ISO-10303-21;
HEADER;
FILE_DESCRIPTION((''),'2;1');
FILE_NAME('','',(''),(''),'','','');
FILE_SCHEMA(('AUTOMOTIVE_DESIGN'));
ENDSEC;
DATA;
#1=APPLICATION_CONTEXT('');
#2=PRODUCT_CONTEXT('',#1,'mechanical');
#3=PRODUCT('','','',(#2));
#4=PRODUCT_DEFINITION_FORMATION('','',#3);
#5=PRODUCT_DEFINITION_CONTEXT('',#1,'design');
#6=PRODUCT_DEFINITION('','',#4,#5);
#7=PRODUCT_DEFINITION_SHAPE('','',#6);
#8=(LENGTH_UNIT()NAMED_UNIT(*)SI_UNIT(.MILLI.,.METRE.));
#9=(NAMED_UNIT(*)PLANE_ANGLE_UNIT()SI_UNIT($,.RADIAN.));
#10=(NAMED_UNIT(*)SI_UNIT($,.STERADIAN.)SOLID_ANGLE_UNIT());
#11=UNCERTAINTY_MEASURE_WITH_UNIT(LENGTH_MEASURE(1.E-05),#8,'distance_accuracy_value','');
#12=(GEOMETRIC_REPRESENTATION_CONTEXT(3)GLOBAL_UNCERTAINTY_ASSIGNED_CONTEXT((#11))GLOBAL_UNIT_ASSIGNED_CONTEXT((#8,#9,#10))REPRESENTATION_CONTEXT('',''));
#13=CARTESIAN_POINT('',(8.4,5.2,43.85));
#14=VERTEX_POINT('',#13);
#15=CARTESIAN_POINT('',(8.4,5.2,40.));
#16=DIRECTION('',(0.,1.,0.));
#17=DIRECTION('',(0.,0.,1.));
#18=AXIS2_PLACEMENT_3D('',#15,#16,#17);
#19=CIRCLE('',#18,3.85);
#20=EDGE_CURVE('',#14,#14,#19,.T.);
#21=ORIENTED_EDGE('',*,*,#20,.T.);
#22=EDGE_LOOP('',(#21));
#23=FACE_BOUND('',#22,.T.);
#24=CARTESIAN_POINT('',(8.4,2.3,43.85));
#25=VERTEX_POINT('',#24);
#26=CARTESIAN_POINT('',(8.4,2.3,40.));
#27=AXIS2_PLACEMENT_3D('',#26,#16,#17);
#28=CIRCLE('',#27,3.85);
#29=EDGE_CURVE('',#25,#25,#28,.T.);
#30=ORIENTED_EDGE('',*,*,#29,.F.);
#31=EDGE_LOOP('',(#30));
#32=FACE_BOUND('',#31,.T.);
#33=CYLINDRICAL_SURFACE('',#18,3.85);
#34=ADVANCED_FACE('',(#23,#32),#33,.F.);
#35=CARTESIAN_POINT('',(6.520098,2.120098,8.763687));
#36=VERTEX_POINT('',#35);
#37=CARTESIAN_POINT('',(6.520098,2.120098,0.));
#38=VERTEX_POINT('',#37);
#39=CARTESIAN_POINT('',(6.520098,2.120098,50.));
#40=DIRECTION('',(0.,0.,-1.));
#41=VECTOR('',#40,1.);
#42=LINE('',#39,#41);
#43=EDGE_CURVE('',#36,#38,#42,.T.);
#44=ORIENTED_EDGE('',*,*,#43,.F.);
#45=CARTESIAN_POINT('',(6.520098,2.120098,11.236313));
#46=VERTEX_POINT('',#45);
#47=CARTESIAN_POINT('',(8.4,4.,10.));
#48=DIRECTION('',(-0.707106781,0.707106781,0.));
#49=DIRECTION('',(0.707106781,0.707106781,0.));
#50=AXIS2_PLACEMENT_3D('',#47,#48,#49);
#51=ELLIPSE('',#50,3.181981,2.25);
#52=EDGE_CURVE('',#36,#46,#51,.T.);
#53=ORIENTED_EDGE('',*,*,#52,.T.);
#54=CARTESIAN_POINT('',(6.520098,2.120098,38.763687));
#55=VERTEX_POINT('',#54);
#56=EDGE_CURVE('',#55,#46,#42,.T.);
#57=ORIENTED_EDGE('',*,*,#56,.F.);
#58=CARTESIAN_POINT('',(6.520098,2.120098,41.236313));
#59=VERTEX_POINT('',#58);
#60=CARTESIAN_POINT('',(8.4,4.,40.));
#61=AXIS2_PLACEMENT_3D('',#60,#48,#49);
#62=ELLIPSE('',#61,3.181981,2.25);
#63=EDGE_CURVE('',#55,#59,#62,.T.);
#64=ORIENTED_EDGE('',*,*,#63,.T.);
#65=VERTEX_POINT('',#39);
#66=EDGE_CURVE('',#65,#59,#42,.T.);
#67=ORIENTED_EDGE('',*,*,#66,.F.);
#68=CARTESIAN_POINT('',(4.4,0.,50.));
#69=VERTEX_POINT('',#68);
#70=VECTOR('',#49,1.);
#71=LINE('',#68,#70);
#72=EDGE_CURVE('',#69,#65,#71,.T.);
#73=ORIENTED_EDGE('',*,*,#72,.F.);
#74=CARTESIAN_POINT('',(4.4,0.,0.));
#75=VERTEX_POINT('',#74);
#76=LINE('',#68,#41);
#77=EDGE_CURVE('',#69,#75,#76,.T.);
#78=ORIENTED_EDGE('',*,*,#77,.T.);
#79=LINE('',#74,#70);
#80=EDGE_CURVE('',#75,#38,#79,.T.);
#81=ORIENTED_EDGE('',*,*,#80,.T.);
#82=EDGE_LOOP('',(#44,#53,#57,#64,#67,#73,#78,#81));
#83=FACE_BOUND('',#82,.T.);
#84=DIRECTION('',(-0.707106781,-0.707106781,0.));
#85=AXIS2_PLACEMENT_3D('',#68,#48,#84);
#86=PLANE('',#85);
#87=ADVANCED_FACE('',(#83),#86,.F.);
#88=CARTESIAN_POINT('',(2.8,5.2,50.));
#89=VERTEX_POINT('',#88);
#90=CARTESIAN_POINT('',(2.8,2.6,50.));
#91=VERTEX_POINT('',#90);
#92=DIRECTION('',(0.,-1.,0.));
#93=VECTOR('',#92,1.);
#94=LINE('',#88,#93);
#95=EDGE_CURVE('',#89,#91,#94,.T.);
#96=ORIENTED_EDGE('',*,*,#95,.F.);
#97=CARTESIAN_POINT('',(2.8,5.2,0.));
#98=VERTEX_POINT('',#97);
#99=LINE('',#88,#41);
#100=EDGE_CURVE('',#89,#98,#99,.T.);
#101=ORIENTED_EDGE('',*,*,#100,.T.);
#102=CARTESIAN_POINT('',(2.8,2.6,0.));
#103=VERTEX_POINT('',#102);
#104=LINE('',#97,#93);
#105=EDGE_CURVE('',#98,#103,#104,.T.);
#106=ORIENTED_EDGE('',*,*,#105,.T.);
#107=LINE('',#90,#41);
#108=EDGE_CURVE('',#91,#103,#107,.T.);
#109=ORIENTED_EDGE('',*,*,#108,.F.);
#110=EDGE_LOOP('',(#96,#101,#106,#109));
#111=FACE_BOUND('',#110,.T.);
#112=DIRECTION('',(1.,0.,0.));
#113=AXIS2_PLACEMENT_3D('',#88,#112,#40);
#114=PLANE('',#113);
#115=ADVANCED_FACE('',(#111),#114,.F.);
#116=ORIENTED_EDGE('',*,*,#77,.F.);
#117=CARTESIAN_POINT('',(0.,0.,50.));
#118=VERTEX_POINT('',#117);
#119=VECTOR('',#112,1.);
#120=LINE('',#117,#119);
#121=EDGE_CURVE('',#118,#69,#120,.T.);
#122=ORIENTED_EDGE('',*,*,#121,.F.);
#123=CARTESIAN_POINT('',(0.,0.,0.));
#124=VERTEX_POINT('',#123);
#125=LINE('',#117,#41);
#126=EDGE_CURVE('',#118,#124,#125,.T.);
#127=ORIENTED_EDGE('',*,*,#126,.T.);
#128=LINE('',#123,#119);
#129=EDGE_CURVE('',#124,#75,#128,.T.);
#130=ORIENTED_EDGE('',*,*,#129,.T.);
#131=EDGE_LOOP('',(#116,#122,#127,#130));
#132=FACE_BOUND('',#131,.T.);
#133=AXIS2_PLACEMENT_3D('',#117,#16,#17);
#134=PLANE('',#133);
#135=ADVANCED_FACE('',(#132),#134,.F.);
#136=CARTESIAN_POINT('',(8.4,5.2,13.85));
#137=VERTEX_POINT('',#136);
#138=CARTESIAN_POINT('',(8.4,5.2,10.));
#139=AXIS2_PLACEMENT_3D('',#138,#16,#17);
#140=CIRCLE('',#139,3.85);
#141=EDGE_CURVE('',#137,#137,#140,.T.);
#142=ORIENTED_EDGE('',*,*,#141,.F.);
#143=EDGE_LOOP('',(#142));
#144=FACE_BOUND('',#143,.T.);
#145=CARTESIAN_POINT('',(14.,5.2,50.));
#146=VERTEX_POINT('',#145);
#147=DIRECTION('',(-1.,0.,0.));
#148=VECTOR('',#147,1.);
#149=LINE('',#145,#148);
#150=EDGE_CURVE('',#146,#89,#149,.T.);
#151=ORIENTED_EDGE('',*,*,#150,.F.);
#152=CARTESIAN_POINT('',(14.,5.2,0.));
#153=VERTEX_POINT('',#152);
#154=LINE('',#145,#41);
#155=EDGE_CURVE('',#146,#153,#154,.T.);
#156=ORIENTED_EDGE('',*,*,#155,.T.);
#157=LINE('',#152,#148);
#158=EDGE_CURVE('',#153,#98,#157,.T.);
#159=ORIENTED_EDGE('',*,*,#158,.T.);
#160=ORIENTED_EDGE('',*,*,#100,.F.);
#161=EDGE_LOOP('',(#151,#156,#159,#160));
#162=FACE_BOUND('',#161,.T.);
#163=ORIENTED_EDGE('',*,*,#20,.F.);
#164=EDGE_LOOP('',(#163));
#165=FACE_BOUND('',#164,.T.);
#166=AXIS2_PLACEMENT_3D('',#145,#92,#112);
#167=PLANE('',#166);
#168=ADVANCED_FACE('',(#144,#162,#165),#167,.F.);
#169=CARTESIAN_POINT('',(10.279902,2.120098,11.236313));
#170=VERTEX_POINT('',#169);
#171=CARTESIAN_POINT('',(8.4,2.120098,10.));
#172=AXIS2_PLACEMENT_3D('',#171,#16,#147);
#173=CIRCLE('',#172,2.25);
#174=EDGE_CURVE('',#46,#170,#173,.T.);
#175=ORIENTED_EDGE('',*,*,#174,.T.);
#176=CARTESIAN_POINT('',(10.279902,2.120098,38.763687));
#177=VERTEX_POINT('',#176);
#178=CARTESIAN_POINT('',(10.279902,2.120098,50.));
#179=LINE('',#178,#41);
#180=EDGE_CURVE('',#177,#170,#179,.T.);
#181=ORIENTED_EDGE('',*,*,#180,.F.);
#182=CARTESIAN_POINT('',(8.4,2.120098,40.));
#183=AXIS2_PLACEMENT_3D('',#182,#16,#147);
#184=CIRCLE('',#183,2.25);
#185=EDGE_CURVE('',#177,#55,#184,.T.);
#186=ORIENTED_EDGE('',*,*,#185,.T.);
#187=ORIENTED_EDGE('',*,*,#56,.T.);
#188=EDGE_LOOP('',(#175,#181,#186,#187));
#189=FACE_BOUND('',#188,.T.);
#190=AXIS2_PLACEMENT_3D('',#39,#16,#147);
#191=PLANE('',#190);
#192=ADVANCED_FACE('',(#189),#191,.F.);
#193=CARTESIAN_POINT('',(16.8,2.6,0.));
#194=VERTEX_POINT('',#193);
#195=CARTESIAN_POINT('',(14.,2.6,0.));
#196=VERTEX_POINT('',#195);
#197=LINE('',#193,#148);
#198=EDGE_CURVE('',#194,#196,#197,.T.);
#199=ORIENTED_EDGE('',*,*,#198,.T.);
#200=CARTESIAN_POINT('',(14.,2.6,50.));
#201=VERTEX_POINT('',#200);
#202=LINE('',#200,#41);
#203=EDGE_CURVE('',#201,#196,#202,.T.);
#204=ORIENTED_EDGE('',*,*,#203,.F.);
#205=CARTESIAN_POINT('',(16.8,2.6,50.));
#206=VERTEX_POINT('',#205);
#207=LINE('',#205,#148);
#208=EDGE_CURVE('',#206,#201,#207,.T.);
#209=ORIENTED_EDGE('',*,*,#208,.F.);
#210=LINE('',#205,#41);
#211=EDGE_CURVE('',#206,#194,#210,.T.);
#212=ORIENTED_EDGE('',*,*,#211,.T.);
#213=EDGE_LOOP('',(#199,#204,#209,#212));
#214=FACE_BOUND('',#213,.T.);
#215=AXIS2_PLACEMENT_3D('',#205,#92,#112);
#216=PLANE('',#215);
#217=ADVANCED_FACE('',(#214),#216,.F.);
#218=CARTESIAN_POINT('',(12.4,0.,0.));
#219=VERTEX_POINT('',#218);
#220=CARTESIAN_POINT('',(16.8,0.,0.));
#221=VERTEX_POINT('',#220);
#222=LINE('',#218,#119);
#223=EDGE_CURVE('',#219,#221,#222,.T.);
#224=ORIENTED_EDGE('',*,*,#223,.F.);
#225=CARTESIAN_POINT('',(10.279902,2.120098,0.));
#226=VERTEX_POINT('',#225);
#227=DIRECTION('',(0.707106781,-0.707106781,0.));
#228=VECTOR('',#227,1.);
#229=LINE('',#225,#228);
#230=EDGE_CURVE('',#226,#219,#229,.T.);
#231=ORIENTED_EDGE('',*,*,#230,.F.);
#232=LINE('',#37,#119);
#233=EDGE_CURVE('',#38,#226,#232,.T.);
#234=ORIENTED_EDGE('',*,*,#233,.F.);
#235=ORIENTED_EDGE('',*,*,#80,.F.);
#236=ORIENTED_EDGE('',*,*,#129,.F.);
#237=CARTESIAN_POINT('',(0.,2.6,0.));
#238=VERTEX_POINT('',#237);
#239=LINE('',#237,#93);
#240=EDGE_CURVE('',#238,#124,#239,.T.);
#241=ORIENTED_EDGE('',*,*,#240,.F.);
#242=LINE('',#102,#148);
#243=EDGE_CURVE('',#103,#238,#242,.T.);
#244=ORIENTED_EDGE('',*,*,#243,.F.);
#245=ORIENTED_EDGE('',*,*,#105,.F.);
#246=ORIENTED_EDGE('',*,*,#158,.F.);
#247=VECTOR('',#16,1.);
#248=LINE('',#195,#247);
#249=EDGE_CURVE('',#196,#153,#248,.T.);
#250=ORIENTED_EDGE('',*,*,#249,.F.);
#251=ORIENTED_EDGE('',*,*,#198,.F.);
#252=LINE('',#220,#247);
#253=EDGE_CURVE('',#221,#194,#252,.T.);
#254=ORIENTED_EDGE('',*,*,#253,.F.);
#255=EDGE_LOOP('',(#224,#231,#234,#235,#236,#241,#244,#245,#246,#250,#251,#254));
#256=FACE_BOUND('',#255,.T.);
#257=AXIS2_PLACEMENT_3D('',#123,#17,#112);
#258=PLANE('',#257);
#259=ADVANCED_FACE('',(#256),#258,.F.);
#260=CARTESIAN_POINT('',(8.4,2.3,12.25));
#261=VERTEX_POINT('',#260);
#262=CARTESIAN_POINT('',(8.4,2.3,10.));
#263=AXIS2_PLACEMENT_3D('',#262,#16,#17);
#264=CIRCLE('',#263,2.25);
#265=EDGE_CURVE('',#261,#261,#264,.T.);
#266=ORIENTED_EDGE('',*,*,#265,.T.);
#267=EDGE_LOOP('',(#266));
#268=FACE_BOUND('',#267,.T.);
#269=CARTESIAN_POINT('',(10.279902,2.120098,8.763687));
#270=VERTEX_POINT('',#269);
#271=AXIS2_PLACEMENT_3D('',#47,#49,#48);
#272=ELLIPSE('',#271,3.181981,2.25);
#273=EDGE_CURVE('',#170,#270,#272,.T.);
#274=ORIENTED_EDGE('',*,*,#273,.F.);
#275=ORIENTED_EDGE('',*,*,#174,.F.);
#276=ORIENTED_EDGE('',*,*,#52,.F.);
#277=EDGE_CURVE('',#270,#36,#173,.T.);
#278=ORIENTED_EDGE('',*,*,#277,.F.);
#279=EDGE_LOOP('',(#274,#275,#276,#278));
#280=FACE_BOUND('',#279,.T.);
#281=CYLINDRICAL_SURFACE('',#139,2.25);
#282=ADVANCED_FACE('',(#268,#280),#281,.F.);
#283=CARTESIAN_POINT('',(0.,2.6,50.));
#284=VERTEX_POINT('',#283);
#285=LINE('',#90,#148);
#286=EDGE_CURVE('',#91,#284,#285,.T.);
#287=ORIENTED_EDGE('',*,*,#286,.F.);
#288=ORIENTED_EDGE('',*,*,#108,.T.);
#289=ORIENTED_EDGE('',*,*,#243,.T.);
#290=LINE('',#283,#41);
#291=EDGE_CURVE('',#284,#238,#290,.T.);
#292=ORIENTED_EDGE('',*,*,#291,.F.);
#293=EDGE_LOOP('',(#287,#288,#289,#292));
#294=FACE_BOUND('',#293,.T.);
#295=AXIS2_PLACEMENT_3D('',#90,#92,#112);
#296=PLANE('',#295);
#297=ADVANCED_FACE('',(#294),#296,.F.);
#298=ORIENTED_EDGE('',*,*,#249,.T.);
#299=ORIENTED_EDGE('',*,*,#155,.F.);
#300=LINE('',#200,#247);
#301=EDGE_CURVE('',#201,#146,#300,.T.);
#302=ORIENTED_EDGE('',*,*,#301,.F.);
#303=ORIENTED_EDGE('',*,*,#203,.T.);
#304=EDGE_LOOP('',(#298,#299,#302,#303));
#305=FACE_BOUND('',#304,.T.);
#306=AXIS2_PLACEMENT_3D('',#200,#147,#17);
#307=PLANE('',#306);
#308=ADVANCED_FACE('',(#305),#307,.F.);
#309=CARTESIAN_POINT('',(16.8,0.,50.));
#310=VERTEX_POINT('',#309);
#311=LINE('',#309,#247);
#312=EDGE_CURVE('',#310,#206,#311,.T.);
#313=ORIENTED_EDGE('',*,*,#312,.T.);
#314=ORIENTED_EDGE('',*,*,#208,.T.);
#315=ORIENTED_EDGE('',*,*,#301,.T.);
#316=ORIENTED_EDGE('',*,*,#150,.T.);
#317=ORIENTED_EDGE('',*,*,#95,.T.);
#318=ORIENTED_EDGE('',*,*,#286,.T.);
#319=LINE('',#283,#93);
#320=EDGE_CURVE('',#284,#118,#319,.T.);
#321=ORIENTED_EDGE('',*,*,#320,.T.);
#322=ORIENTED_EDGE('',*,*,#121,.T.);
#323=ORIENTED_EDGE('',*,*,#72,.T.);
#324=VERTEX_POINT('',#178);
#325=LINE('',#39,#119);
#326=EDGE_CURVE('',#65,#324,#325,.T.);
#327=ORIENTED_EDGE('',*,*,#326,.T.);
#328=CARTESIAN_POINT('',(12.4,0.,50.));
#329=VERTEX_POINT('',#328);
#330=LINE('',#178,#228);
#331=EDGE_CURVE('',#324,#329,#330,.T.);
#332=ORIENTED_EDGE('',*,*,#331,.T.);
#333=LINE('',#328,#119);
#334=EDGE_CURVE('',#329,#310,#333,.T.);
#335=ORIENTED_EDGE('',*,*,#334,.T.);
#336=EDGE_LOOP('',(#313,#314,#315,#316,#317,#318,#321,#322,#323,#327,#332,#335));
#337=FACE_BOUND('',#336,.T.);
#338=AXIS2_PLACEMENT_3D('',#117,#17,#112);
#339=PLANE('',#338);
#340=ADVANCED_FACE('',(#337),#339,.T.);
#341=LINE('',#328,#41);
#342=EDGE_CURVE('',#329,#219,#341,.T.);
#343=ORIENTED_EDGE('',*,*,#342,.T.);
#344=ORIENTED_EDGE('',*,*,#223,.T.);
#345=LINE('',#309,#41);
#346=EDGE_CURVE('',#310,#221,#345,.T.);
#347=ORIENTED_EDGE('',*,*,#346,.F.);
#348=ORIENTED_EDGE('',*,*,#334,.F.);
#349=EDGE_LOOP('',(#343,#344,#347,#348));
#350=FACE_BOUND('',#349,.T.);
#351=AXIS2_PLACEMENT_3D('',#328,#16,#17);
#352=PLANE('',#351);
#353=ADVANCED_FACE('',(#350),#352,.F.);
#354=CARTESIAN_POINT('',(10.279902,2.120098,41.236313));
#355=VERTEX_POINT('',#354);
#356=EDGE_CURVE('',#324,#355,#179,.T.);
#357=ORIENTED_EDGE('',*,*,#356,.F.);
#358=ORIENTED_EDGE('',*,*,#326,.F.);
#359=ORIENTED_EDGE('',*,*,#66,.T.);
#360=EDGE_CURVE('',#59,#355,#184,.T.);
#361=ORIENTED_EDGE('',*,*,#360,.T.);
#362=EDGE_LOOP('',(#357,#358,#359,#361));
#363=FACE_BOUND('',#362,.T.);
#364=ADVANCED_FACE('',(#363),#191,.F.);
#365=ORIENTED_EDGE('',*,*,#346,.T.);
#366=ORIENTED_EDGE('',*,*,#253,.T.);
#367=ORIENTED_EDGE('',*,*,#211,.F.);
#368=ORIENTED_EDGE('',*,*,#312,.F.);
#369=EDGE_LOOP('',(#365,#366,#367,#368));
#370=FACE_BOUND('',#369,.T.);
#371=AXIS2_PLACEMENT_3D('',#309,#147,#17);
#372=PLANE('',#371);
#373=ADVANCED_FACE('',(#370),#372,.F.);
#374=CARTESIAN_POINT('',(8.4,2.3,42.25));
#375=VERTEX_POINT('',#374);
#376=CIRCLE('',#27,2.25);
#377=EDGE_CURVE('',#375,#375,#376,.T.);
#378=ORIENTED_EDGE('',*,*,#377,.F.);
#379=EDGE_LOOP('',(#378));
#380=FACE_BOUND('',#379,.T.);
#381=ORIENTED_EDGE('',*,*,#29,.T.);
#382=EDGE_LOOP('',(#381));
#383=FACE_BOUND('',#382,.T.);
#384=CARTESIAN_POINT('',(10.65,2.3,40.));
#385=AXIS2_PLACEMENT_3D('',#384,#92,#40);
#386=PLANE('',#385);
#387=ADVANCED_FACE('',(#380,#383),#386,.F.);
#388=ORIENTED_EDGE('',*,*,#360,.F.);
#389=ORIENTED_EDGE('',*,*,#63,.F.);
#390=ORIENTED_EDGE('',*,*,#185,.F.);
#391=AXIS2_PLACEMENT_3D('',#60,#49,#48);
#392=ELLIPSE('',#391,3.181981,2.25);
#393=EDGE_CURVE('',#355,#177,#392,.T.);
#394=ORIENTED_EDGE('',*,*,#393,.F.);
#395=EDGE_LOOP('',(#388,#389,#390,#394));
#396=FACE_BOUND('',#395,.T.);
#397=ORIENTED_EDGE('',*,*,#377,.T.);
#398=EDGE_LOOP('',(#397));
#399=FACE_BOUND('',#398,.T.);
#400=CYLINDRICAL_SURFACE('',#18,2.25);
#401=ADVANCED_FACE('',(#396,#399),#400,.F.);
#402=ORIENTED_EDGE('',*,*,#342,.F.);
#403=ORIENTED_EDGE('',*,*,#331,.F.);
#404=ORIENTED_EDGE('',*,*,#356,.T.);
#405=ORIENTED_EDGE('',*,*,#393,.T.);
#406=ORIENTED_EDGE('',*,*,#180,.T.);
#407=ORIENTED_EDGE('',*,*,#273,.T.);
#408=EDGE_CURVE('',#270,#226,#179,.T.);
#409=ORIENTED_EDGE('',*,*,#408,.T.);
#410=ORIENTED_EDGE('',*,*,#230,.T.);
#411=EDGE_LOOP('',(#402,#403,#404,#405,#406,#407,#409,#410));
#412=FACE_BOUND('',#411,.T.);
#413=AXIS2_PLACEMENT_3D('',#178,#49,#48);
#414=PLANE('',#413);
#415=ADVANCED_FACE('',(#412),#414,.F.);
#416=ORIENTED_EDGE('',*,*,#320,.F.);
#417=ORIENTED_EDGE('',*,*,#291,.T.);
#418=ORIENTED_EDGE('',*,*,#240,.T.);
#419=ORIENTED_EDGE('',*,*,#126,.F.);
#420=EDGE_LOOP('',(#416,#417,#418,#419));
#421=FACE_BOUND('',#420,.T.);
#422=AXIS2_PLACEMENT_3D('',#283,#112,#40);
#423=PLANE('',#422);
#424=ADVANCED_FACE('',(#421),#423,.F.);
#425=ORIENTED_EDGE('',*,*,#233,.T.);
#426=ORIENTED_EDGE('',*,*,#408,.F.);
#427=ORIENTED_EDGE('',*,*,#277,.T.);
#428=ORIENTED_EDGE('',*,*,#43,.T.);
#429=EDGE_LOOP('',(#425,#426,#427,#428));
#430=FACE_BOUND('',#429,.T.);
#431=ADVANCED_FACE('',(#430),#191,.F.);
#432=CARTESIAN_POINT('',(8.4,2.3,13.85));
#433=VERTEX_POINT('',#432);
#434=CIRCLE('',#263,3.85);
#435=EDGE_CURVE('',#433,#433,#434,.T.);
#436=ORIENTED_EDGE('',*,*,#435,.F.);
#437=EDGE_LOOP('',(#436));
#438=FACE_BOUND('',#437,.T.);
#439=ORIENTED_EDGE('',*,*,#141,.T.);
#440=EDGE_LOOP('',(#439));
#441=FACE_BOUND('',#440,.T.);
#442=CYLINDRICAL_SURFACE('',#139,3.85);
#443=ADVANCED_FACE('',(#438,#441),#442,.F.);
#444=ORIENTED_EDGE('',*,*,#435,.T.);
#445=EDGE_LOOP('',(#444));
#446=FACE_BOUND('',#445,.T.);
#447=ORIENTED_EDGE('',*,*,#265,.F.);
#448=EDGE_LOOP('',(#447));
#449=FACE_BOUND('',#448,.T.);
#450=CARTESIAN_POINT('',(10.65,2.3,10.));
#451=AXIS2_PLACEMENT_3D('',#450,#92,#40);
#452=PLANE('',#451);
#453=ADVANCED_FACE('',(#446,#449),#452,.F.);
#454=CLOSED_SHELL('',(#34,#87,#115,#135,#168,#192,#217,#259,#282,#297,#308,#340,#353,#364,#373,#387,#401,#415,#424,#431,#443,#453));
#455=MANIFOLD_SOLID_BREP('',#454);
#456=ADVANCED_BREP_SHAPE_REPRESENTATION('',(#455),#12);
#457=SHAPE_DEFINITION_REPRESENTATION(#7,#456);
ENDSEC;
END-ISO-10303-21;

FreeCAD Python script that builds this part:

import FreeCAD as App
import Part
import Sketcher
from FreeCAD import Vector


def add_polygon(sketch, points):
    """Adds a closed chain of lines whose ends are joined by coincident constraints."""
    first, n = sketch.GeometryCount, len(points)
    for a, b in zip(points, points[1:] + points[:1]):
        sketch.addGeometry(Part.LineSegment(App.Vector(*a, 0), App.Vector(*b, 0)), False)
    for i in range(n):
        sketch.addConstraint(Sketcher.Constraint("Coincident", first + i, 2, first + (i + 1) % n, 1))

doc = App.newDocument("Part")
body = doc.addObject("PartDesign::Body", "Body")

# Sketch on XY plane
sketch1 = body.newObject("Sketcher::SketchObject", "Sketch")
sketch1.AttachmentSupport = (doc.getObject("XY_Plane"), [""])
sketch1.MapMode = "FlatFace"
add_polygon(sketch1, [(0, 0), (4.4, 0), (6.5, 2.1), (10.3, 2.1), (12.4, 0), (16.8, 0), (16.8, 2.6), (14, 2.6), (14, 5.2), (2.8, 5.2), (2.8, 2.6), (0, 2.6)])  # lines 0-11
sketch1.addConstraint(Sketcher.Constraint("Horizontal", 0))
sketch1.addConstraint(Sketcher.Constraint("Horizontal", 2))
sketch1.addConstraint(Sketcher.Constraint("Horizontal", 4))
sketch1.addConstraint(Sketcher.Constraint("Vertical", 5))
sketch1.addConstraint(Sketcher.Constraint("Horizontal", 6))
sketch1.addConstraint(Sketcher.Constraint("Vertical", 7))
sketch1.addConstraint(Sketcher.Constraint("Horizontal", 8))
sketch1.addConstraint(Sketcher.Constraint("Vertical", 9))
sketch1.addConstraint(Sketcher.Constraint("Horizontal", 10))
sketch1.addConstraint(Sketcher.Constraint("Vertical", 11))
sketch1.addConstraint(Sketcher.Constraint("Coincident", 11, 2, -1, 1))
sketch1.addConstraint(Sketcher.Constraint("PointOnObject", 3, 2, -1))
sketch1.addConstraint(Sketcher.Constraint("Perpendicular", 1, 3))
sketch1.addConstraint(Sketcher.Constraint("Horizontal", 6, 2, 9, 2))
sketch1.addConstraint(Sketcher.Constraint("Equal", 0, 4))
sketch1.addConstraint(Sketcher.Constraint("Equal", 6, 10))
sketch1.addConstraint(Sketcher.Constraint("Equal", 5, 7))
sketch1.addConstraint(Sketcher.Constraint("Equal", 1, 3))
sketch1.addConstraint(Sketcher.Constraint("DistanceX", 0, 1, 0, 2, 4.4))
sketch1.addConstraint(Sketcher.Constraint("DistanceX", 6, 2, 6, 1, 2.8))
sketch1.addConstraint(Sketcher.Constraint("DistanceX", 8, 2, 8, 1, 11.2))
sketch1.addConstraint(Sketcher.Constraint("DistanceY", 5, 1, 5, 2, 2.6))
sketch1.addConstraint(Sketcher.Constraint("DistanceX", -1, 1, 1, 2, 6.520098))
pad1 = body.newObject("PartDesign::Pad", "Pad")
pad1.Profile = sketch1
pad1.Length = 50

# Sketch on XZ plane
sketch2 = body.newObject("Sketcher::SketchObject", "Sketch001")
sketch2.AttachmentSupport = (doc.getObject("XZ_Plane"), [""])
sketch2.MapMode = "FlatFace"
sketch2.AttachmentOffset = App.Placement(Vector(0, 0, -5.2), App.Rotation())
sketch2.addGeometry(Part.Circle(Vector(8.4, 10, 0), Vector(0, 0, 1), 2.2), False)
sketch2.addGeometry(Part.Circle(Vector(8.4, 40, 0), Vector(0, 0, 1), 2.2), False)
sketch2.addConstraint(Sketcher.Constraint("Equal", 0, 1))
sketch2.addConstraint(Sketcher.Constraint("Vertical", 0, 3, 1, 3))
sketch2.addConstraint(Sketcher.Constraint("Diameter", 0, 4.5))
sketch2.addConstraint(Sketcher.Constraint("DistanceY", -1, 1, 0, 3, 10.0))
sketch2.addConstraint(Sketcher.Constraint("DistanceY", -1, 1, 1, 3, 40.0))
sketch2.addConstraint(Sketcher.Constraint("DistanceX", -1, 1, 0, 3, 8.4))
doc.recompute()
hole = body.newObject("PartDesign::Hole", "Hole")
hole.Profile = sketch2
hole.ThreadType = "None"
hole.Diameter = 4.5
hole.DepthType = "ThroughAll"
hole.HoleCutType = "Counterbore"
hole.HoleCutDiameter = 7.7
hole.HoleCutDepth = 2.9
hole.Reversed = True

doc.recompute()
